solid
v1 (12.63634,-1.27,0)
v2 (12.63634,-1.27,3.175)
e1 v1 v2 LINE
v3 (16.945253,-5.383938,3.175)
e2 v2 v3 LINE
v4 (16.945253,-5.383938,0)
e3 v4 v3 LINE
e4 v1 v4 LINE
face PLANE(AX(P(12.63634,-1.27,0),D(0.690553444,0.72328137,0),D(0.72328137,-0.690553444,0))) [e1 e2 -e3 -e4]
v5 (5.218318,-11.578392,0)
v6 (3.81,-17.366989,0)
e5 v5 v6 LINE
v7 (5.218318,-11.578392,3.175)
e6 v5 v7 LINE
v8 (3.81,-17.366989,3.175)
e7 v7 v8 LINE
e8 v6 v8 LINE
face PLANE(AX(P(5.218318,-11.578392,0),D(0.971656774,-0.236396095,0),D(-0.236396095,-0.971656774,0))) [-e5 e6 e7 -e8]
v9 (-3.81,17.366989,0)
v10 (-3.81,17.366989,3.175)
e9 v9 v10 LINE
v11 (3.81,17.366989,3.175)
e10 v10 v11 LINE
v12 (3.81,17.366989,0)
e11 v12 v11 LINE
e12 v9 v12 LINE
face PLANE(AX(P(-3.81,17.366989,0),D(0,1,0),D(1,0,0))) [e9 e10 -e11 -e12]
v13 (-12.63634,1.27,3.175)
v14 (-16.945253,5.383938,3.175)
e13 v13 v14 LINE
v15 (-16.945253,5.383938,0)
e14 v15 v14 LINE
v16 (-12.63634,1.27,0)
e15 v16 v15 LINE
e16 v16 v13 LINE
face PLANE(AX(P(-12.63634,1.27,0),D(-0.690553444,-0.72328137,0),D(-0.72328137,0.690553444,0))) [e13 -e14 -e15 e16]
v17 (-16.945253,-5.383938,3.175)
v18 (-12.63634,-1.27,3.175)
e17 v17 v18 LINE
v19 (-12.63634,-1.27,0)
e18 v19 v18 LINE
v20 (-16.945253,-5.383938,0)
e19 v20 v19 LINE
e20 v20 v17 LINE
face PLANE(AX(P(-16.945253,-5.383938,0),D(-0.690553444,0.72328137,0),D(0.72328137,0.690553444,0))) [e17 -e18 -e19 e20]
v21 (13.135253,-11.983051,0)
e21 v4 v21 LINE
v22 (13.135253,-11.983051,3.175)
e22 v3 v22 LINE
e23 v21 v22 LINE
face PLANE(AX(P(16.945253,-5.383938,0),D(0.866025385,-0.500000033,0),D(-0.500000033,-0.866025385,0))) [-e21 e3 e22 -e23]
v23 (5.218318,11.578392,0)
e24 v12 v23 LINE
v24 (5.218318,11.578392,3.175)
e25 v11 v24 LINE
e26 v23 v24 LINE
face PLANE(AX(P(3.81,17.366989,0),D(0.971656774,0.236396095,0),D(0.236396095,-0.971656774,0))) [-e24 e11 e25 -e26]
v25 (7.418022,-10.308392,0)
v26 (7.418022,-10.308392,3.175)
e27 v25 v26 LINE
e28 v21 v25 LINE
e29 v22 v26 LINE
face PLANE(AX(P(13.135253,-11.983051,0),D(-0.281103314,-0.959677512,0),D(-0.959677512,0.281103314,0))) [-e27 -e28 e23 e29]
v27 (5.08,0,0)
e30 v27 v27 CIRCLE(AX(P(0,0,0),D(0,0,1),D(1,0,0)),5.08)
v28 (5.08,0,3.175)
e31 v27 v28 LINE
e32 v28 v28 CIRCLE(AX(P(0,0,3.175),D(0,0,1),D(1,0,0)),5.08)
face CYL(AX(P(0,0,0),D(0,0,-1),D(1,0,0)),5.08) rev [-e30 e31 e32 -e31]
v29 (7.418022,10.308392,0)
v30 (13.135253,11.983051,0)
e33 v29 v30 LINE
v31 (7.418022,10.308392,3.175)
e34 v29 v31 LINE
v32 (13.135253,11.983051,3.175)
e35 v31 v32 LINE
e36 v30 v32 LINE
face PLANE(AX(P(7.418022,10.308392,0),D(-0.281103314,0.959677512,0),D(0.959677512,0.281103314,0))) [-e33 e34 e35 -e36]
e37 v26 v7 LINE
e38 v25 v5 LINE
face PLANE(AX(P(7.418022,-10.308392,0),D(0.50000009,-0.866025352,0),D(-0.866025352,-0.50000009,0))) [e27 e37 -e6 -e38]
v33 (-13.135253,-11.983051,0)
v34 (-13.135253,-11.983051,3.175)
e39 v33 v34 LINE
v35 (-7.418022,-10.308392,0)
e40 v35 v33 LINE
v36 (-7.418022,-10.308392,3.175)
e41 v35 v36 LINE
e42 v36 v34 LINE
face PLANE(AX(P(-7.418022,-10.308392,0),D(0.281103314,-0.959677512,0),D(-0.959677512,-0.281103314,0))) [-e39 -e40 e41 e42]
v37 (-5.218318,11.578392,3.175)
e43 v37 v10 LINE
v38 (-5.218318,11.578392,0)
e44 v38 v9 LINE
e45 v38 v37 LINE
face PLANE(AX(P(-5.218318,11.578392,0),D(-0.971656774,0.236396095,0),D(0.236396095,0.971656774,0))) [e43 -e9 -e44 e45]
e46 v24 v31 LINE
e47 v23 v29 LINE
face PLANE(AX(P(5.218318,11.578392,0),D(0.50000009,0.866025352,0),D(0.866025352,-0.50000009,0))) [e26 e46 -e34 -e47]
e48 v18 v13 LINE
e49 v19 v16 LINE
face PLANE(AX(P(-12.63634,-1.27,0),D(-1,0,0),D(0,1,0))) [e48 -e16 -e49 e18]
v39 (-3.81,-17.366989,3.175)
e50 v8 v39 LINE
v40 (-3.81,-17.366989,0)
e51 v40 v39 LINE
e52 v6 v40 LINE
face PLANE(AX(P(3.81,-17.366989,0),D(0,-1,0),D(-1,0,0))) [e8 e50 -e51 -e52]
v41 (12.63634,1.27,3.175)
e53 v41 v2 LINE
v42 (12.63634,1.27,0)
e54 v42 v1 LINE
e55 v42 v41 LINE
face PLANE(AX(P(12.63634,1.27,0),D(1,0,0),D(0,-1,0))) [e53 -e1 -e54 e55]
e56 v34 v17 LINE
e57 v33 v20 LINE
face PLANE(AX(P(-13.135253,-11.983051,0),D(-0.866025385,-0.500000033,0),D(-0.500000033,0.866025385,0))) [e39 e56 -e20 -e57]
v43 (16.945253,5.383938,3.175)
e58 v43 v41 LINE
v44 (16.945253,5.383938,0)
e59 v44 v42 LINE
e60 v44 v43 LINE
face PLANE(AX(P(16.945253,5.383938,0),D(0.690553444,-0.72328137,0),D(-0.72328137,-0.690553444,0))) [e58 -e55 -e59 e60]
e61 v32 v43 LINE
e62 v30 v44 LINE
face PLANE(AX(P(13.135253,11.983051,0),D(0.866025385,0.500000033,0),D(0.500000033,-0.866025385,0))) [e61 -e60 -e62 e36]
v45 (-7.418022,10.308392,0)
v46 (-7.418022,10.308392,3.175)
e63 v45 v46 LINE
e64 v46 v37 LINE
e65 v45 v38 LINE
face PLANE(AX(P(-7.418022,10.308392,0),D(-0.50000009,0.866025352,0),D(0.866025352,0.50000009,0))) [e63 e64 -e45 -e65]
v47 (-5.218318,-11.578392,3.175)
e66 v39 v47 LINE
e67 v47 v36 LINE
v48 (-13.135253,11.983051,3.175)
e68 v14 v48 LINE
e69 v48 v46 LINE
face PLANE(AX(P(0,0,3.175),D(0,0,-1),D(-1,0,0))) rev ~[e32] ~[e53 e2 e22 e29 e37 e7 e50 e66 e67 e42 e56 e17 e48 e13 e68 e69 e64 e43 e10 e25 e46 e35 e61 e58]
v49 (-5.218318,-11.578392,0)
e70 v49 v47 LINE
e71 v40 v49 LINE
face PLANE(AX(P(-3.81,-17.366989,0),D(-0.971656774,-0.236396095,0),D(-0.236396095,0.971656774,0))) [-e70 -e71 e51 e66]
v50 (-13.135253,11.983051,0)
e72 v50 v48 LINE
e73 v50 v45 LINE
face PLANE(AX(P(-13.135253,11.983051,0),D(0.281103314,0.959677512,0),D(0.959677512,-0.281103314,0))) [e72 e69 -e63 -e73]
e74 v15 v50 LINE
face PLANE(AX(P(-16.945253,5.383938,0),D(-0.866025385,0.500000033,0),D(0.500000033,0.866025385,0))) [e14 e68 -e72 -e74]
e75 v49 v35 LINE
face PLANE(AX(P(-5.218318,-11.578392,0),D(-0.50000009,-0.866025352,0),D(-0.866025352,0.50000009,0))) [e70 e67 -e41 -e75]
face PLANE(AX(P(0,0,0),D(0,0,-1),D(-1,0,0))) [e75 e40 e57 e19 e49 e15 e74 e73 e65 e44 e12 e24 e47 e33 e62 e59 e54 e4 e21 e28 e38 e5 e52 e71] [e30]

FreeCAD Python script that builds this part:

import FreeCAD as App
import Part
import Sketcher

V = App.Vector
Q = App.Units.Quantity

doc = App.newDocument("Part")
body = doc.addObject("PartDesign::Body", "Body")

# Sketch on XY plane
sketch1 = body.newObject("Sketcher::SketchObject", "Sketch")
sketch1.AttachmentSupport = (doc.getObject("XY_Plane"), [""])
sketch1.MapMode = "FlatFace"
sketch1.addGeometry(Part.LineSegment(V(-3.81, 17.366989, 0), V(-5.218318, 11.578392, 0)), False)
sketch1.addGeometry(Part.LineSegment(V(-5.218318, 11.578392, 0), V(-7.418022, 10.308392, 0)), False)
sketch1.addGeometry(Part.LineSegment(V(-7.418022, 10.308392, 0), V(-13.135253, 11.983051, 0)), False)
sketch1.addGeometry(Part.LineSegment(V(-13.135253, 11.983051, 0), V(-16.945253, 5.383938, 0)), False)
sketch1.addGeometry(Part.LineSegment(V(-16.945253, 5.383938, 0), V(-12.63634, 1.27, 0)), False)
sketch1.addGeometry(Part.LineSegment(V(-12.63634, 1.27, 0), V(-12.63634, -1.27, 0)), False)
sketch1.addGeometry(Part.LineSegment(V(-12.63634, -1.27, 0), V(-16.945253, -5.383938, 0)), False)
sketch1.addGeometry(Part.LineSegment(V(-16.945253, -5.383938, 0), V(-13.135253, -11.983051, 0)), False)
sketch1.addGeometry(Part.LineSegment(V(-13.135253, -11.983051, 0), V(-7.418022, -10.308392, 0)), False)
sketch1.addGeometry(Part.LineSegment(V(-7.418022, -10.308392, 0), V(-5.218318, -11.578392, 0)), False)
sketch1.addGeometry(Part.LineSegment(V(-5.218318, -11.578392, 0), V(-3.81, -17.366989, 0)), False)
sketch1.addGeometry(Part.LineSegment(V(-3.81, -17.366989, 0), V(3.81, -17.366989, 0)), False)
sketch1.addGeometry(Part.LineSegment(V(3.81, -17.366989, 0), V(5.218318, -11.578392, 0)), False)
sketch1.addGeometry(Part.LineSegment(V(5.218318, -11.578392, 0), V(7.418022, -10.308392, 0)), False)
sketch1.addGeometry(Part.LineSegment(V(7.418022, -10.308392, 0), V(13.135253, -11.983051, 0)), False)
sketch1.addGeometry(Part.LineSegment(V(13.135253, -11.983051, 0), V(16.945253, -5.383938, 0)), False)
sketch1.addGeometry(Part.LineSegment(V(16.945253, -5.383938, 0), V(12.63634, -1.27, 0)), False)
sketch1.addGeometry(Part.LineSegment(V(12.63634, -1.27, 0), V(12.63634, 1.27, 0)), False)
sketch1.addGeometry(Part.LineSegment(V(12.63634, 1.27, 0), V(16.945253, 5.383938, 0)), False)
sketch1.addGeometry(Part.LineSegment(V(16.945253, 5.383938, 0), V(13.135253, 11.983051, 0)), False)
sketch1.addGeometry(Part.LineSegment(V(13.135253, 11.983051, 0), V(7.418022, 10.308392, 0)), False)
sketch1.addGeometry(Part.LineSegment(V(7.418022, 10.308392, 0), V(5.218318, 11.578392, 0)), False)
sketch1.addGeometry(Part.LineSegment(V(5.218318, 11.578392, 0), V(3.81, 17.366989, 0)), False)
sketch1.addGeometry(Part.LineSegment(V(3.81, 17.366989, 0), V(-3.81, 17.366989, 0)), False)
sketch1.addGeometry(Part.Circle(V(0, 0, 0), V(0, 0, 1), 5.08), False)
sketch1.addConstraint(Sketcher.Constraint("Coincident", 0, 2, 1, 1))
sketch1.addConstraint(Sketcher.Constraint("Coincident", 1, 2, 2, 1))
sketch1.addConstraint(Sketcher.Constraint("Coincident", 2, 2, 3, 1))
sketch1.addConstraint(Sketcher.Constraint("Coincident", 3, 2, 4, 1))
sketch1.addConstraint(Sketcher.Constraint("Coincident", 4, 2, 5, 1))
sketch1.addConstraint(Sketcher.Constraint("Coincident", 5, 2, 6, 1))
sketch1.addConstraint(Sketcher.Constraint("Coincident", 6, 2, 7, 1))
sketch1.addConstraint(Sketcher.Constraint("Coincident", 7, 2, 8, 1))
sketch1.addConstraint(Sketcher.Constraint("Coincident", 8, 2, 9, 1))
sketch1.addConstraint(Sketcher.Constraint("Coincident", 9, 2, 10, 1))
sketch1.addConstraint(Sketcher.Constraint("Coincident", 10, 2, 11, 1))
sketch1.addConstraint(Sketcher.Constraint("Coincident", 11, 2, 12, 1))
sketch1.addConstraint(Sketcher.Constraint("Coincident", 12, 2, 13, 1))
sketch1.addConstraint(Sketcher.Constraint("Coincident", 13, 2, 14, 1))
sketch1.addConstraint(Sketcher.Constraint("Coincident", 14, 2, 15, 1))
sketch1.addConstraint(Sketcher.Constraint("Coincident", 15, 2, 16, 1))
sketch1.addConstraint(Sketcher.Constraint("Coincident", 16, 2, 17, 1))
sketch1.addConstraint(Sketcher.Constraint("Coincident", 17, 2, 18, 1))
sketch1.addConstraint(Sketcher.Constraint("Coincident", 18, 2, 19, 1))
sketch1.addConstraint(Sketcher.Constraint("Coincident", 19, 2, 20, 1))
sketch1.addConstraint(Sketcher.Constraint("Coincident", 20, 2, 21, 1))
sketch1.addConstraint(Sketcher.Constraint("Coincident", 21, 2, 22, 1))
sketch1.addConstraint(Sketcher.Constraint("Coincident", 22, 2, 23, 1))
sketch1.addConstraint(Sketcher.Constraint("Coincident", 23, 2, 0, 1))
sketch1.addConstraint(Sketcher.Constraint("Vertical", 5))
sketch1.addConstraint(Sketcher.Constraint("Horizontal", 11))
sketch1.addConstraint(Sketcher.Constraint("Vertical", 17))
sketch1.addConstraint(Sketcher.Constraint("Horizontal", 23))
sketch1.addConstraint(Sketcher.Constraint("Coincident", 24, 3, -1, 1))
sketch1.addConstraint(Sketcher.Constraint("Symmetric", 0, 2, 12, 2, -1, 1))
sketch1.addConstraint(Sketcher.Constraint("Symmetric", 1, 2, 13, 2, -1, 1))
sketch1.addConstraint(Sketcher.Constraint("Symmetric", 2, 2, 14, 2, -1, 1))
sketch1.addConstraint(Sketcher.Constraint("Symmetric", 3, 2, 15, 2, -1, 1))
sketch1.addConstraint(Sketcher.Constraint("Symmetric", 4, 2, 16, 2, -1, 1))
sketch1.addConstraint(Sketcher.Constraint("Symmetric", 6, 2, 18, 2, -1, 1))
sketch1.addConstraint(Sketcher.Constraint("Symmetric", 7, 2, 19, 2, -1, 1))
sketch1.addConstraint(Sketcher.Constraint("Symmetric", 8, 2, 20, 2, -1, 1))
sketch1.addConstraint(Sketcher.Constraint("Symmetric", 9, 2, 21, 2, -1, 1))
sketch1.addConstraint(Sketcher.Constraint("Symmetric", 10, 2, 22, 2, -1, 1))
sketch1.addConstraint(Sketcher.Constraint("Symmetric", 9, 2, 12, 2, -2))
sketch1.addConstraint(Sketcher.Constraint("Symmetric", 8, 2, 13, 2, -2))
sketch1.addConstraint(Sketcher.Constraint("Symmetric", 7, 2, 14, 2, -2))
sketch1.addConstraint(Sketcher.Constraint("Symmetric", 6, 2, 15, 2, -2))
sketch1.addConstraint(Sketcher.Constraint("Perpendicular", 1, 7))
sketch1.addConstraint(Sketcher.Constraint("Parallel", 0, 12))
sketch1.addConstraint(Sketcher.Constraint("Parallel", 6, 18))
sketch1.addConstraint(Sketcher.Constraint("Horizontal", 5, 2, 16, 2))
sketch1.addConstraint(Sketcher.Constraint("Vertical", 11, 2, 22, 2))
sketch1.addConstraint(Sketcher.Constraint("Equal", 0, 2))
sketch1.addConstraint(Sketcher.Constraint("Equal", 2, 4))
sketch1.addConstraint(Sketcher.Constraint("Diameter", 24, Q("0.4 in")))
sketch1.addConstraint(Sketcher.Constraint("DistanceX", 11, 1, 11, 2, Q("0.3 in")))
sketch1.addConstraint(Sketcher.Constraint("DistanceY", 5, 2, 5, 1, Q("0.1 in")))
sketch1.addConstraint(Sketcher.Constraint("Angle", 1, Q("-149.999994 deg")))
sketch1.addConstraint(Sketcher.Constraint("Distance", 1, Q("0.1 in")))
sketch1.addConstraint(Sketcher.Constraint("Distance", 3, Q("0.3 in")))
sketch1.addConstraint(Sketcher.Constraint("Distance", 0, Q("5.95745 mm")))
sketch1.addConstraint(Sketcher.Constraint("DistanceY", -1, 1, 0, 2, Q("11.578392 mm")))
sketch1.addConstraint(Sketcher.Constraint("DistanceX", 1, 2, -1, 1, Q("7.418022 mm")))
sketch1.addConstraint(Sketcher.Constraint("DistanceY", -1, 1, 2, 2, Q("11.983051 mm")))
pad1 = body.newObject("PartDesign::Pad", "Pad")
pad1.Profile = sketch1
pad1.Length = Q("0.125 in")

doc.recompute()
